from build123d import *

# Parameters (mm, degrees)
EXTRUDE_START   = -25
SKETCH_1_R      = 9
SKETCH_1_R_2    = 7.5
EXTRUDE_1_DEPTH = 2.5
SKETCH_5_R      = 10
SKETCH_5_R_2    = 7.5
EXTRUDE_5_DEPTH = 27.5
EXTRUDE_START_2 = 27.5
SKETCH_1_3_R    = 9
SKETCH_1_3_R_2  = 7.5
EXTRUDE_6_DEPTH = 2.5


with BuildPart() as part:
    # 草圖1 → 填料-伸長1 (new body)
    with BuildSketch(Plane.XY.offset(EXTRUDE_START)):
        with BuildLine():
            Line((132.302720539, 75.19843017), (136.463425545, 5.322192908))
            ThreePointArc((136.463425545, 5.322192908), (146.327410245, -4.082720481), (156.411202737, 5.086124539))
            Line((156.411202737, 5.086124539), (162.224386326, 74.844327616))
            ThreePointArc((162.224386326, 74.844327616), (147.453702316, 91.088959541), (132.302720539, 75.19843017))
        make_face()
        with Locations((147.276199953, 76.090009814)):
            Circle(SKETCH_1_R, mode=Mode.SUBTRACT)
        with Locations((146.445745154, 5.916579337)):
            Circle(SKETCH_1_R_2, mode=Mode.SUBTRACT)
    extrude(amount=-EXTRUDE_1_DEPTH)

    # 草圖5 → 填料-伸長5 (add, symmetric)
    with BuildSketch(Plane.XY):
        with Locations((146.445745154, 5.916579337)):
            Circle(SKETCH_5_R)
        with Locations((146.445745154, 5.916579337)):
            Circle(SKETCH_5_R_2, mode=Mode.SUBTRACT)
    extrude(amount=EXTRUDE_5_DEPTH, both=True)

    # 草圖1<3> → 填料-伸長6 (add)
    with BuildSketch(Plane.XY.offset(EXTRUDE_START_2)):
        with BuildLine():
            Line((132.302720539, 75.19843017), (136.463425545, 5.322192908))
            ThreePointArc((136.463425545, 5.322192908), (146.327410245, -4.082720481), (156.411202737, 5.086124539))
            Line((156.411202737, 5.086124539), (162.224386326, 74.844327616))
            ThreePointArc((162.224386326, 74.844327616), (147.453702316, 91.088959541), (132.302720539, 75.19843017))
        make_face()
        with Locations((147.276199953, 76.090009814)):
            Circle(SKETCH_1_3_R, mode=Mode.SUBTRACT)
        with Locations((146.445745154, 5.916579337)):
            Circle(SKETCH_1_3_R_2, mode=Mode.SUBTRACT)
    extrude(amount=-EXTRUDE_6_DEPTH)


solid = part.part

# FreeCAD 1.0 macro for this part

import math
import FreeCAD as App
import Part
import Sketcher

V = App.Vector

doc = App.newDocument("Part")
body = doc.addObject("PartDesign::Body", "Body")

# Sketch on XY plane
sketch1 = doc.addObject("Sketcher::SketchObject", "Sketch")
body.addObject(sketch1)
sketch1.AttachmentSupport = (doc.XY_Plane, [""])
sketch1.MapMode = "FlatFace"
sketch1.AttachmentOffset = App.Placement(V(0, 0, -25), App.Rotation())
sketch1.addGeometry([
    Part.LineSegment(V(132.302721, 75.19843, 0), V(136.463426, 5.322193, 0)),  # 0
    Part.ArcOfCircle(Part.Circle(V(146.445745, 5.916579, 0), V(0, 0, 1), 10), math.radians(-176.592408), math.radians(-4.763642)),  # 1
    Part.LineSegment(V(156.411203, 5.086125, 0), V(162.224386, 74.844328, 0)),  # 2
    Part.ArcOfCircle(Part.Circle(V(147.2762, 76.09001, 0), V(0, 0, 1), 15), math.radians(-4.763642), math.radians(183.407592)),  # 3
    Part.Circle(V(146.445745, 5.916579, 0), V(0, 0, 1), 7.5),  # 4
    Part.Circle(V(147.2762, 76.09001, 0), V(0, 0, 1), 9),  # 5
], False)
sketch1.addConstraint([
    Sketcher.Constraint("Tangent", 0, 2, 1, 1),
    Sketcher.Constraint("Tangent", 1, 2, 2, 1),
    Sketcher.Constraint("Tangent", 2, 2, 3, 1),
    Sketcher.Constraint("Tangent", 3, 2, 0, 1),
    Sketcher.Constraint("Coincident", 4, 3, 1, 3),
    Sketcher.Constraint("Coincident", 5, 3, 3, 3),
    Sketcher.Constraint("Diameter", 4, 15.0),
    Sketcher.Constraint("Diameter", 5, 18.0),
    Sketcher.Constraint("Radius", 1, 10.0),
    Sketcher.Constraint("Radius", 3, 15.0),
    Sketcher.Constraint("Distance", 0, 70.0),
    Sketcher.Constraint("DistanceX", -1, 1, 3, 3, 147.2762),
    Sketcher.Constraint("DistanceY", -1, 1, 1, 3, 5.916579),
    Sketcher.Constraint("DistanceY", -1, 1, 3, 3, 76.09001),
])
pad1 = doc.addObject("PartDesign::Pad", "Pad")
body.addObject(pad1)
pad1.Profile = sketch1
pad1.Length = 2.5
pad1.Reversed = True

# Sketch on XY plane
sketch2 = doc.addObject("Sketcher::SketchObject", "Sketch001")
body.addObject(sketch2)
sketch2.AttachmentSupport = (doc.XY_Plane, [""])
sketch2.MapMode = "FlatFace"
sketch2.addGeometry([
    Part.Circle(V(146, 6, 0), V(0, 0, 1), 10),
    Part.Circle(V(146, 6, 0), V(0, 0, 1), 8),
], False)
sketch2.addConstraint([
    Sketcher.Constraint("Coincident", 1, 3, 0, 3),
    Sketcher.Constraint("Diameter", 0, 20.0),
    Sketcher.Constraint("Diameter", 1, 15.0),
    Sketcher.Constraint("DistanceY", -1, 1, 0, 3, 5.916579),
    Sketcher.Constraint("DistanceX", -1, 1, 0, 3, 146.445745),
])
pad2 = doc.addObject("PartDesign::Pad", "Pad001")
body.addObject(pad2)
pad2.Profile = sketch2
pad2.Length = 55
pad2.Midplane = True

# Sketch on XY plane
sketch3 = doc.addObject("Sketcher::SketchObject", "Sketch002")
body.addObject(sketch3)
sketch3.AttachmentSupport = (doc.XY_Plane, [""])
sketch3.MapMode = "FlatFace"
sketch3.AttachmentOffset = App.Placement(V(0, 0, 27.5), App.Rotation())
sketch3.addGeometry([
    Part.LineSegment(V(132.302721, 75.19843, 0), V(136.463426, 5.322193, 0)),  # 0
    Part.ArcOfCircle(Part.Circle(V(146.445745, 5.916579, 0), V(0, 0, 1), 10), math.radians(-176.592408), math.radians(-4.763642)),  # 1
    Part.LineSegment(V(156.411203, 5.086125, 0), V(162.224386, 74.844328, 0)),  # 2
    Part.ArcOfCircle(Part.Circle(V(147.2762, 76.09001, 0), V(0, 0, 1), 15), math.radians(-4.763642), math.radians(183.407592)),  # 3
    Part.Circle(V(146.445745, 5.916579, 0), V(0, 0, 1), 7.5),  # 4
    Part.Circle(V(147.2762, 76.09001, 0), V(0, 0, 1), 9),  # 5
], False)
sketch3.addConstraint([
    Sketcher.Constraint("Tangent", 0, 2, 1, 1),
    Sketcher.Constraint("Tangent", 1, 2, 2, 1),
    Sketcher.Constraint("Tangent", 2, 2, 3, 1),
    Sketcher.Constraint("Tangent", 3, 2, 0, 1),
    Sketcher.Constraint("Coincident", 4, 3, 1, 3),
    Sketcher.Constraint("Coincident", 5, 3, 3, 3),
    Sketcher.Constraint("Diameter", 4, 15.0),
    Sketcher.Constraint("Diameter", 5, 18.0),
    Sketcher.Constraint("Radius", 1, 10.0),
    Sketcher.Constraint("Radius", 3, 15.0),
    Sketcher.Constraint("Distance", 0, 70.0),
    Sketcher.Constraint("DistanceX", -1, 1, 3, 3, 147.2762),
    Sketcher.Constraint("DistanceY", -1, 1, 1, 3, 5.916579),
    Sketcher.Constraint("DistanceY", -1, 1, 3, 3, 76.09001),
])
pad3 = doc.addObject("PartDesign::Pad", "Pad002")
body.addObject(pad3)
pad3.Profile = sketch3
pad3.Length = 2.5
pad3.Reversed = True

doc.recompute()
